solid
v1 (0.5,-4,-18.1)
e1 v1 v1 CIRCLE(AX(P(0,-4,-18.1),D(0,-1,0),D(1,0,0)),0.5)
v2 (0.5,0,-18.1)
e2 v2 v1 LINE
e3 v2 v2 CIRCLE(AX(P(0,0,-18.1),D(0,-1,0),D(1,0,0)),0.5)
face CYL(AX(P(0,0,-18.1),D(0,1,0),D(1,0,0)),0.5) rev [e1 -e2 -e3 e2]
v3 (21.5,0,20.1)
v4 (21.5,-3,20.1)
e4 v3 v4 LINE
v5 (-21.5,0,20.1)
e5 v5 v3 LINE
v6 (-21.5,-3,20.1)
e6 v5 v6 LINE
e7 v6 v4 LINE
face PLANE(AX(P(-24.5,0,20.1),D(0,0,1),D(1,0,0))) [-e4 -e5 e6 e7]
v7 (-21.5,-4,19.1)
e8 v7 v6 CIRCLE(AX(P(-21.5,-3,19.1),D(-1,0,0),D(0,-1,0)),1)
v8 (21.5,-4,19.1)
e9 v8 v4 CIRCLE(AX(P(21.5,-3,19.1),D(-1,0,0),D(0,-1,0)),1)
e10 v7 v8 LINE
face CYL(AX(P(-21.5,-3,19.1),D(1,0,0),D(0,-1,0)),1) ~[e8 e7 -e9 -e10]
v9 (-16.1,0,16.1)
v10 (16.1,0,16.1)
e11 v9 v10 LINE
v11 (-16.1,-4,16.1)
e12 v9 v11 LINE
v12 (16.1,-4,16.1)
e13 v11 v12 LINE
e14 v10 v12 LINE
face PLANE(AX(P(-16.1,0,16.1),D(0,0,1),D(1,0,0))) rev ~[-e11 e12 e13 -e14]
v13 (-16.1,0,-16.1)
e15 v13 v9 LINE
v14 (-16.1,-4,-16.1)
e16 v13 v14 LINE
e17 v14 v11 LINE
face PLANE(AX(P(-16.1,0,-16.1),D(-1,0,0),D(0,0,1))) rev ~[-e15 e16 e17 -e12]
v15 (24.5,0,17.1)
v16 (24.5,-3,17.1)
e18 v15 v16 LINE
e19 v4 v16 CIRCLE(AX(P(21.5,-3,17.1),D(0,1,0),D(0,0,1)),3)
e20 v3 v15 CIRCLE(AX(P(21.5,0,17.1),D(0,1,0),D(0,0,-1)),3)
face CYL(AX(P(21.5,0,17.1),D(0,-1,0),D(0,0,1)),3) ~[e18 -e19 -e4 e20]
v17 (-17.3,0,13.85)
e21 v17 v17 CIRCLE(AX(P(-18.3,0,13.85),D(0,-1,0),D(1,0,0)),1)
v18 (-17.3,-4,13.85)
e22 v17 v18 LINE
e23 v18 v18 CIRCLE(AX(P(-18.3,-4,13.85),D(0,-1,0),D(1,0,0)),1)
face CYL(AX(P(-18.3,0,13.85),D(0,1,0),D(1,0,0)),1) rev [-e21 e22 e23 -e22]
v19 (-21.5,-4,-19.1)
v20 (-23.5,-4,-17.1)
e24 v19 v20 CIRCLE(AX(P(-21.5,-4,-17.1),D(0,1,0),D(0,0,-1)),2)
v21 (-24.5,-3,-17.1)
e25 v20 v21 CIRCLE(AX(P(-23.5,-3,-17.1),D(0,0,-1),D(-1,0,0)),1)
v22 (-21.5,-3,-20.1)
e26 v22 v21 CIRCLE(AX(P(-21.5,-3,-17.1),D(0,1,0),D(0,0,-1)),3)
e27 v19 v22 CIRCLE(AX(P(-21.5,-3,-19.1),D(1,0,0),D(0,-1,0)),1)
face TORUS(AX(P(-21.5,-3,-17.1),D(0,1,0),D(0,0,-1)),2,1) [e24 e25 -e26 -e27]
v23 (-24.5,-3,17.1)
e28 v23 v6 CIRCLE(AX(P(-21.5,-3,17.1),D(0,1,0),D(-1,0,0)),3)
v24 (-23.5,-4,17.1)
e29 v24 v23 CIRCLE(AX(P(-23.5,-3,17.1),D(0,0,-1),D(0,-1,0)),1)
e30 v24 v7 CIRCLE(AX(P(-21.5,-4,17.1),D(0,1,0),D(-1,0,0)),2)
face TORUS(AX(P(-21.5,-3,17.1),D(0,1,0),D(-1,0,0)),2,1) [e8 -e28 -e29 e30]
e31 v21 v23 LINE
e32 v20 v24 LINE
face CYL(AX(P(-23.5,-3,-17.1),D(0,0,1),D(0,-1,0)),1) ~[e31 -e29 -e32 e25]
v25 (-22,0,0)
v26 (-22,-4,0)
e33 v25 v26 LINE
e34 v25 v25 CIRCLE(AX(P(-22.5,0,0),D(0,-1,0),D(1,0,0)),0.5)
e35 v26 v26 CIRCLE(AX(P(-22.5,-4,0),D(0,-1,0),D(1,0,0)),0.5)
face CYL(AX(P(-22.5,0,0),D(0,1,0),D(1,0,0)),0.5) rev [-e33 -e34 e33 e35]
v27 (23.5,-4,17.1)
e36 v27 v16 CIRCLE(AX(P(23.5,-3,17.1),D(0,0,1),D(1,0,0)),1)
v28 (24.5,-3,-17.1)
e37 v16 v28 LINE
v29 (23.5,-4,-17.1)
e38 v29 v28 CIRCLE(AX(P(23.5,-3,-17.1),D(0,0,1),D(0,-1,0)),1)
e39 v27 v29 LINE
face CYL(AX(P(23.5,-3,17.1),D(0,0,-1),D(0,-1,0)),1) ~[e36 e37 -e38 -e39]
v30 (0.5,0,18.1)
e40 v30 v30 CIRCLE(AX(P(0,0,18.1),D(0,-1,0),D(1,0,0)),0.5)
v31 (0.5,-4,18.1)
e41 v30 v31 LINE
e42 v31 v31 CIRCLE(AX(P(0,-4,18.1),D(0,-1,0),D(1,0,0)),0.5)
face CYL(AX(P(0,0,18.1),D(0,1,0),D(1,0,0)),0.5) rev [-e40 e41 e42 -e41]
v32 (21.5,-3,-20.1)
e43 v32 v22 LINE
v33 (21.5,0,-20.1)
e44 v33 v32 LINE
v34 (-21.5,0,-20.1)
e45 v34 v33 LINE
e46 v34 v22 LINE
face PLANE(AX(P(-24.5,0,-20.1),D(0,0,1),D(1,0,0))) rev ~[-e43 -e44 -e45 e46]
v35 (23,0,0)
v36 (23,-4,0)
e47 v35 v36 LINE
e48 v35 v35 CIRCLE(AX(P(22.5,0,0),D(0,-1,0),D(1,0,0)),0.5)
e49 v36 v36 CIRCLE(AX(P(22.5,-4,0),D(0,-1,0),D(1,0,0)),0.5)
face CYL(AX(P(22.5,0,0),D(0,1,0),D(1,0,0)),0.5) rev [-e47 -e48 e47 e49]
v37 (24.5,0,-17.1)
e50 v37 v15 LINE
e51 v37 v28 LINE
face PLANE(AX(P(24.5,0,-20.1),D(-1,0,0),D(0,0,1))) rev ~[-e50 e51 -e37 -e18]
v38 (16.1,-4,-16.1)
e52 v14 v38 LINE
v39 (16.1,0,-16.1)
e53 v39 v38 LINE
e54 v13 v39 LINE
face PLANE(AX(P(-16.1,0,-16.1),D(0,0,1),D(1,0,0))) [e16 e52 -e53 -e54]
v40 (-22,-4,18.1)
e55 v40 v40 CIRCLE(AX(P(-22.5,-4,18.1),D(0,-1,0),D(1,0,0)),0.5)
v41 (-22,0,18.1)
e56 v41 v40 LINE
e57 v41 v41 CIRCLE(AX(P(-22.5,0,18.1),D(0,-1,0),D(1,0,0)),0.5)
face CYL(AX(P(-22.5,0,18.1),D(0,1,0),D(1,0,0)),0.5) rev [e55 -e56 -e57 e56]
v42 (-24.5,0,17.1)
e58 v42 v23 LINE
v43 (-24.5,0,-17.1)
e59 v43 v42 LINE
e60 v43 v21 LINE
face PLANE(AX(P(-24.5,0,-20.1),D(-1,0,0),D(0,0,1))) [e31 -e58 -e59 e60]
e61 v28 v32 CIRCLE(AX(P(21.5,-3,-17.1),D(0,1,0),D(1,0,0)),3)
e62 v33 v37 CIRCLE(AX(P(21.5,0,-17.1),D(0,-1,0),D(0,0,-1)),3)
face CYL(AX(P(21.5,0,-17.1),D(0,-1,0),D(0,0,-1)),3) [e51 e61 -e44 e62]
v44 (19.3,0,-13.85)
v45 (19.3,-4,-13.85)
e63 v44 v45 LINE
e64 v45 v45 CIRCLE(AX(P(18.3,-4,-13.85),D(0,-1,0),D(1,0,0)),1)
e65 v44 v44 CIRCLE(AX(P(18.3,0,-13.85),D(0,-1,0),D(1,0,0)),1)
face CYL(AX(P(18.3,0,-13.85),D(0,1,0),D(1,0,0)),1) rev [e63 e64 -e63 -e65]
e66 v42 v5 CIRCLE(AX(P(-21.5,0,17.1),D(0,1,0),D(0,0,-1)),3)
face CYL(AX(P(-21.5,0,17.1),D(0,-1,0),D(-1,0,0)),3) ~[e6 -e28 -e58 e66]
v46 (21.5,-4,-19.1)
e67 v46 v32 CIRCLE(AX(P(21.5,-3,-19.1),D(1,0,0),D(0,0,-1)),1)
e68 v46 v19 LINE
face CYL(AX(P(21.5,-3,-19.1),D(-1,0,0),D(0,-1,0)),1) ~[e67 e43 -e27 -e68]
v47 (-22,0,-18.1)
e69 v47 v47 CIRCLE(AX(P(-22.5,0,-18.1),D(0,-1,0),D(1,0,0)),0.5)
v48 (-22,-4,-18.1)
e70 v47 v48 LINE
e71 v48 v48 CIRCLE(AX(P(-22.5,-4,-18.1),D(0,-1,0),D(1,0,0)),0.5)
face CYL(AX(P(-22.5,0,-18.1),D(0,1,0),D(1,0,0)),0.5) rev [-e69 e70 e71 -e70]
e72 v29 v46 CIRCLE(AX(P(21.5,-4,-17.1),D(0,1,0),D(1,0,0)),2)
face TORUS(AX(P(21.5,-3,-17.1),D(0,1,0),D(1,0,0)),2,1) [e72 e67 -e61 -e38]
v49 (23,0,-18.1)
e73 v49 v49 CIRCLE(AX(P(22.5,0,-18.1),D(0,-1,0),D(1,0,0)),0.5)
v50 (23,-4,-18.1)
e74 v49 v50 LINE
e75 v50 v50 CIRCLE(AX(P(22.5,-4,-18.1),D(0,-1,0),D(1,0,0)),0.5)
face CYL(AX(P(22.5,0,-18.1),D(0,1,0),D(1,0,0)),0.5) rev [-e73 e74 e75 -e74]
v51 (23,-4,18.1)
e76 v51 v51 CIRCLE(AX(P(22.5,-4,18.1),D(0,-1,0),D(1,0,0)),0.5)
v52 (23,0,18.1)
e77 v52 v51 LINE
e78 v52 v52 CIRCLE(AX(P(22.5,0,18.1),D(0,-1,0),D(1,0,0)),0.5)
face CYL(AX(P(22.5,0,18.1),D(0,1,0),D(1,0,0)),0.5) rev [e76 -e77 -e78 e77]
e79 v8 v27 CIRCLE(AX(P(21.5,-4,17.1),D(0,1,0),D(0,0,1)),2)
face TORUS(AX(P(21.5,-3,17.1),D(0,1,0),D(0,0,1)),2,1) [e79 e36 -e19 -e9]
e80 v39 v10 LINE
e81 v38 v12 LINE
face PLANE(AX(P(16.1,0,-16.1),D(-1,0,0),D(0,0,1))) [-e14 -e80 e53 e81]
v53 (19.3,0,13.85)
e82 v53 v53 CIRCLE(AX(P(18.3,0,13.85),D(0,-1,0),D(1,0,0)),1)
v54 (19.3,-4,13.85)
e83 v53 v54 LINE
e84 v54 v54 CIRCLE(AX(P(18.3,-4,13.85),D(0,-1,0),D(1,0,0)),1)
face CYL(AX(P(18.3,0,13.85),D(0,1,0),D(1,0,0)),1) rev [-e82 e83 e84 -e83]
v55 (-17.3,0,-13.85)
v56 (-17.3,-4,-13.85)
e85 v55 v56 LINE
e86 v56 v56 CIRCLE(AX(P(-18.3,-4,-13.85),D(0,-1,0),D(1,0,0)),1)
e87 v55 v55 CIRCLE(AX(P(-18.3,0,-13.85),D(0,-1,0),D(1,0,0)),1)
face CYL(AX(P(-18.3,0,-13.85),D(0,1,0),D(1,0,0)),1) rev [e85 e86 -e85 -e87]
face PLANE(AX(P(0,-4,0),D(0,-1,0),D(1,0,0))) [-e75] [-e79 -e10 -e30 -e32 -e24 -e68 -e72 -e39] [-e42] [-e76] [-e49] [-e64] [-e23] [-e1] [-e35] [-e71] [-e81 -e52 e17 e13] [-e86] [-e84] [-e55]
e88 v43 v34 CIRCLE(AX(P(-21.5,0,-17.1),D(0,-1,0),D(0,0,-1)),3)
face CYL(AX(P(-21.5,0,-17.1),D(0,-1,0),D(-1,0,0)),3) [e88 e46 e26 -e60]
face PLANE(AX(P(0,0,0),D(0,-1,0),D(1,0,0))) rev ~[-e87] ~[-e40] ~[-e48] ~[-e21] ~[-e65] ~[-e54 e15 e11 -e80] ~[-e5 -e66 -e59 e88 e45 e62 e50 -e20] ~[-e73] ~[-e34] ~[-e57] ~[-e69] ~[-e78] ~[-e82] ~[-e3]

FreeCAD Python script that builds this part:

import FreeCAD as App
import Part
import Sketcher


def edges_at(feature, points):
    """Names of the edges that pass closest to the given points."""
    edges = feature.Shape.Edges
    near = lambda p: min(range(len(edges)), key=lambda i: edges[i].distToShape(Part.Vertex(*p))[0])
    return sorted({f"Edge{near(p) + 1}" for p in points})

doc = App.newDocument("Part")
body = doc.addObject("PartDesign::Body", "Body")

sketch1 = body.newObject("Sketcher::SketchObject", "Sketch")
sketch1.AttachmentSupport = (doc.getObject("XZ_Plane"), [""])
sketch1.MapMode = "FlatFace"
sketch1.addGeometry(Part.LineSegment(App.Vector(-24.5, 20.1, 0), App.Vector(-24.5, -20.1, 0)), False)
sketch1.addGeometry(Part.LineSegment(App.Vector(-24.5, -20.1, 0), App.Vector(24.5, -20.1, 0)), False)
sketch1.addGeometry(Part.LineSegment(App.Vector(24.5, -20.1, 0), App.Vector(24.5, 20.1, 0)), False)
sketch1.addGeometry(Part.LineSegment(App.Vector(24.5, 20.1, 0), App.Vector(-24.5, 20.1, 0)), False)
sketch1.addGeometry(Part.Circle(App.Vector(-22.5, -18.1, 0), App.Vector(0, 0, 1), 0.5), False)
sketch1.addGeometry(Part.Circle(App.Vector(-18.3, -13.8, 0), App.Vector(0, 0, 1), 1), False)
sketch1.addGeometry(Part.Circle(App.Vector(0, -18.1, 0), App.Vector(0, 0, 1), 0.5), False)
sketch1.addGeometry(Part.Circle(App.Vector(22.5, -18.1, 0), App.Vector(0, 0, 1), 0.5), False)
sketch1.addGeometry(Part.Circle(App.Vector(18.3, -13.8, 0), App.Vector(0, 0, 1), 1), False)
sketch1.addGeometry(Part.Circle(App.Vector(-22.5, 0, 0), App.Vector(0, 0, 1), 0.5), False)
sketch1.addGeometry(Part.Circle(App.Vector(-18.3, 13.8, 0), App.Vector(0, 0, 1), 1), False)
sketch1.addGeometry(Part.Circle(App.Vector(-22.5, 18.1, 0), App.Vector(0, 0, 1), 0.5), False)
sketch1.addGeometry(Part.LineSegment(App.Vector(16.1, -16.1, 0), App.Vector(-16.1, -16.1, 0)), False)
sketch1.addGeometry(Part.LineSegment(App.Vector(-16.1, -16.1, 0), App.Vector(-16.1, 16.1, 0)), False)
sketch1.addGeometry(Part.LineSegment(App.Vector(-16.1, 16.1, 0), App.Vector(16.1, 16.1, 0)), False)
sketch1.addGeometry(Part.LineSegment(App.Vector(16.1, 16.1, 0), App.Vector(16.1, -16.1, 0)), False)
sketch1.addGeometry(Part.Circle(App.Vector(22.5, 0, 0), App.Vector(0, 0, 1), 0.5), False)
sketch1.addGeometry(Part.Circle(App.Vector(0, 18.1, 0), App.Vector(0, 0, 1), 0.5), False)
sketch1.addGeometry(Part.Circle(App.Vector(18.3, 13.8, 0), App.Vector(0, 0, 1), 1), False)
sketch1.addGeometry(Part.Circle(App.Vector(22.5, 18.1, 0), App.Vector(0, 0, 1), 0.5), False)
sketch1.addConstraint(Sketcher.Constraint("Coincident", 0, 2, 1, 1))
sketch1.addConstraint(Sketcher.Constraint("Coincident", 1, 2, 2, 1))
sketch1.addConstraint(Sketcher.Constraint("Coincident", 2, 2, 3, 1))
sketch1.addConstraint(Sketcher.Constraint("Coincident", 3, 2, 0, 1))
sketch1.addConstraint(Sketcher.Constraint("Coincident", 12, 2, 13, 1))
sketch1.addConstraint(Sketcher.Constraint("Coincident", 13, 2, 14, 1))
sketch1.addConstraint(Sketcher.Constraint("Coincident", 14, 2, 15, 1))
sketch1.addConstraint(Sketcher.Constraint("Coincident", 15, 2, 12, 1))
sketch1.addConstraint(Sketcher.Constraint("Vertical", 0))
sketch1.addConstraint(Sketcher.Constraint("Horizontal", 1))
sketch1.addConstraint(Sketcher.Constraint("Vertical", 2))
sketch1.addConstraint(Sketcher.Constraint("Horizontal", 3))
sketch1.addConstraint(Sketcher.Constraint("Horizontal", 12))
sketch1.addConstraint(Sketcher.Constraint("Vertical", 13))
sketch1.addConstraint(Sketcher.Constraint("Horizontal", 14))
sketch1.addConstraint(Sketcher.Constraint("Vertical", 15))
sketch1.addConstraint(Sketcher.Constraint("Equal", 4, 6))
sketch1.addConstraint(Sketcher.Constraint("Equal", 6, 7))
sketch1.addConstraint(Sketcher.Constraint("Equal", 5, 8))
sketch1.addConstraint(Sketcher.Constraint("Equal", 7, 9))
sketch1.addConstraint(Sketcher.Constraint("Equal", 8, 10))
sketch1.addConstraint(Sketcher.Constraint("Equal", 9, 11))
sketch1.addConstraint(Sketcher.Constraint("Equal", 11, 16))
sketch1.addConstraint(Sketcher.Constraint("Equal", 16, 17))
sketch1.addConstraint(Sketcher.Constraint("Equal", 10, 18))
sketch1.addConstraint(Sketcher.Constraint("Equal", 17, 19))
sketch1.addConstraint(Sketcher.Constraint("Symmetric", 8, 3, 10, 3, -1, 1))
sketch1.addConstraint(Sketcher.Constraint("Symmetric", 7, 3, 11, 3, -1, 1))
sketch1.addConstraint(Sketcher.Constraint("Symmetric", 9, 3, 16, 3, -1, 1))
sketch1.addConstraint(Sketcher.Constraint("Symmetric", 6, 3, 17, 3, -1, 1))
sketch1.addConstraint(Sketcher.Constraint("Symmetric", 5, 3, 18, 3, -1, 1))
sketch1.addConstraint(Sketcher.Constraint("Symmetric", 4, 3, 19, 3, -1, 1))
sketch1.addConstraint(Sketcher.Constraint("Symmetric", 0, 2, 2, 2, -1, 1))
sketch1.addConstraint(Sketcher.Constraint("Symmetric", 12, 2, 14, 2, -1, 1))
sketch1.addConstraint(Sketcher.Constraint("Symmetric", 4, 3, 7, 3, -2))
sketch1.addConstraint(Sketcher.Constraint("Symmetric", 5, 3, 8, 3, -2))
sketch1.addConstraint(Sketcher.Constraint("PointOnObject", 6, 3, -2))
sketch1.addConstraint(Sketcher.Constraint("PointOnObject", 9, 3, -1))
sketch1.addConstraint(Sketcher.Constraint("Horizontal", 4, 3, 6, 3))
sketch1.addConstraint(Sketcher.Constraint("Vertical", 4, 3, 9, 3))
sketch1.addConstraint(Sketcher.Constraint("Equal", 14, 13))
sketch1.addConstraint(Sketcher.Constraint("Diameter", 4, 1.0))
sketch1.addConstraint(Sketcher.Constraint("Diameter", 5, 2.0))
sketch1.addConstraint(Sketcher.Constraint("DistanceX", 1, 1, 1, 2, 49.0))
sketch1.addConstraint(Sketcher.Constraint("DistanceX", 12, 2, 12, 1, 32.2))
sketch1.addConstraint(Sketcher.Constraint("DistanceY", 0, 2, 0, 1, 40.2))
sketch1.addConstraint(Sketcher.Constraint("DistanceX", 4, 3, 7, 3, 45.0))
sketch1.addConstraint(Sketcher.Constraint("DistanceY", 0, 2, 4, 3, 2.0))
sketch1.addConstraint(Sketcher.Constraint("DistanceX", 5, 3, -1, 1, 18.3))
sketch1.addConstraint(Sketcher.Constraint("DistanceY", 5, 3, 10, 3, 27.7))
pad1 = body.newObject("PartDesign::Pad", "Pad")
pad1.Profile = sketch1
pad1.Length = 4
doc.recompute()

fillet = body.newObject("PartDesign::Fillet", "Fillet")
fillet.Base = (pad1, edges_at(pad1, [
    (-24.5, -2, -20.1),
    (24.5, -2, -20.1),
    (24.5, -2, 20.1),
    (-24.5, -2, 20.1),
]))
fillet.Radius = 3
doc.recompute()

fillet2 = body.newObject("PartDesign::Fillet", "Fillet001")
fillet2.Base = (fillet, edges_at(fillet, [(0, -4, 20.1)]))
fillet2.Radius = 1

doc.recompute()
